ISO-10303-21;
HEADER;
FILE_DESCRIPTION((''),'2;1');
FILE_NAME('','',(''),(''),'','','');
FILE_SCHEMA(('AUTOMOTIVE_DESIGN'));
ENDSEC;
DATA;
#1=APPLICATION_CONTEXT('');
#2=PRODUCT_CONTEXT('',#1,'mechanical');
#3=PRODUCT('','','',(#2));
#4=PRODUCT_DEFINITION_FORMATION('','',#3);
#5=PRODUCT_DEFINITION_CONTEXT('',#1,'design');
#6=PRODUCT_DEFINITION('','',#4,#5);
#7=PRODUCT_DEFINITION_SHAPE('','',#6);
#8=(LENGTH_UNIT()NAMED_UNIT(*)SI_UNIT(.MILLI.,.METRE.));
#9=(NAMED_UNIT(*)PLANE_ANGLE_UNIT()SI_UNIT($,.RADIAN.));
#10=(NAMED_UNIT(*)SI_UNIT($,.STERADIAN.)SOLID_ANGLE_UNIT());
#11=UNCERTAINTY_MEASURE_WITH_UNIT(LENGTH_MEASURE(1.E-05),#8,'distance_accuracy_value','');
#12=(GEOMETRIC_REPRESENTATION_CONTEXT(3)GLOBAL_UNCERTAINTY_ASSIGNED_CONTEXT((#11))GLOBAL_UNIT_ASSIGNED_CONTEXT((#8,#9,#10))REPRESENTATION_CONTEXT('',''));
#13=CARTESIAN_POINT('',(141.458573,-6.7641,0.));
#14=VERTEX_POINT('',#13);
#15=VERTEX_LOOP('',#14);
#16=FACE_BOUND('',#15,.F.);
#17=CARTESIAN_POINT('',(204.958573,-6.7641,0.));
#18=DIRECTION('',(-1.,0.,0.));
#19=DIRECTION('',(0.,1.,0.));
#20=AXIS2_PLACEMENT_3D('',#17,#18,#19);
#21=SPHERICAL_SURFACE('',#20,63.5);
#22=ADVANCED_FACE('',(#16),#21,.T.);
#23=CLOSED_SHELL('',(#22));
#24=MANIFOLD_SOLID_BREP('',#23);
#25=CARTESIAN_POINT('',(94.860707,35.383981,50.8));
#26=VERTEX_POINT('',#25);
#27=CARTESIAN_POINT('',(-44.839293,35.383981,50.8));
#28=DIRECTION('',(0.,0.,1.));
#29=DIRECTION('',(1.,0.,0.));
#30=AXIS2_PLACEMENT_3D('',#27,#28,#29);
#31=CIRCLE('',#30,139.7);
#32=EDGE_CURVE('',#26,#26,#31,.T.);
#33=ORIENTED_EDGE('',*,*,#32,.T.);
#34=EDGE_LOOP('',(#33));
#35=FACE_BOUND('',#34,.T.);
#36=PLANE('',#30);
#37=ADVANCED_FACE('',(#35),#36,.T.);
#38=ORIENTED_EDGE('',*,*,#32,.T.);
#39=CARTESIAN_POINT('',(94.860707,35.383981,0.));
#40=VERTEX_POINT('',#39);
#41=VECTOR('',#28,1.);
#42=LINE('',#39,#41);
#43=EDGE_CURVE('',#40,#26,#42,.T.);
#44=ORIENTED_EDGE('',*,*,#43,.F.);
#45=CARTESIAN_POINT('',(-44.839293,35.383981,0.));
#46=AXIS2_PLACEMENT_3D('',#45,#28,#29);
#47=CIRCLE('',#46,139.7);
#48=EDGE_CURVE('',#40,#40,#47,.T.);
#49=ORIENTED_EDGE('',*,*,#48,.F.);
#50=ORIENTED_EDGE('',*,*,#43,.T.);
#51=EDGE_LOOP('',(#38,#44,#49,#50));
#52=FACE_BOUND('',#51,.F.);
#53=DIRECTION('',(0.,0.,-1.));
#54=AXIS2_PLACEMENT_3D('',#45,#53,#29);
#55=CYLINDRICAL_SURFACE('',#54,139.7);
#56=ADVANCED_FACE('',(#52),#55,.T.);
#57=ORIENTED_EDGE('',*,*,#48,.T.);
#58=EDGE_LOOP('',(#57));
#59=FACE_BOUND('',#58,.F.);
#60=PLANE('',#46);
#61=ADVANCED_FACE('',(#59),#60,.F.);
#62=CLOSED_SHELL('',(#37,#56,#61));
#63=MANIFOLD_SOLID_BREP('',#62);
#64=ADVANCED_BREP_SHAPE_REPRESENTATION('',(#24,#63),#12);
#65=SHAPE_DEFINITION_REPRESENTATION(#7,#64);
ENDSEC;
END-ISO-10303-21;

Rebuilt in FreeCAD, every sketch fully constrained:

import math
import FreeCAD as App
import Part
import Sketcher

V = App.Vector
Q = App.Units.Quantity

doc = App.newDocument("Part")
body = doc.addObject("PartDesign::Body", "Body")

# Sketch on XY plane
sketch1 = body.newObject("Sketcher::SketchObject", "Sketch")
sketch1.AttachmentSupport = (doc.getObject("XY_Plane"), [""])
sketch1.MapMode = "FlatFace"
sketch1.addGeometry(Part.Circle(V(-45, 35, 0), V(0, 0, 1), 140), False)
sketch1.addConstraint([
    Sketcher.Constraint("Diameter", 0, Q("11 in")),
    Sketcher.Constraint("DistanceY", -1, 1, 0, 3, 35.383981),
    Sketcher.Constraint("DistanceX", 0, 3, -1, 1, 44.839293),
])
pad1 = body.newObject("PartDesign::Pad", "Pad")
pad1.Profile = sketch1
pad1.Length = Q("2 in")
body2 = doc.addObject("PartDesign::Body", "Body001")

# Sketch on XY plane
sketch2 = body2.newObject("Sketcher::SketchObject", "Sketch001")
sketch2.AttachmentSupport = (doc.getObject("XY_Plane001"), [""])
sketch2.MapMode = "FlatFace"
sketch2.addGeometry([
    Part.LineSegment(V(141, -7, 0), V(268, -7, 0)),
    Part.ArcOfCircle(Part.Circle(V(205, -7, 0), V(0, 0, 1), 64), math.radians(0), math.radians(180)),
], False)
sketch2.addGeometry(Part.LineSegment(V(141, -7, 0), V(268, -7, 0)), True)  # axis
sketch2.addConstraint([
    Sketcher.Constraint("Coincident", 0, 1, 1, 2),
    Sketcher.Constraint("Coincident", 1, 1, 0, 2),
    Sketcher.Constraint("Horizontal", 0),
    Sketcher.Constraint("Horizontal", 2),
    Sketcher.Constraint("Coincident", 2, 1, 0, 1),
    Sketcher.Constraint("Horizontal", 1, 3, 0, 1),
    Sketcher.Constraint("Equal", 0, 2),
    Sketcher.Constraint("Radius", 1, Q("2.5 in")),
    Sketcher.Constraint("DistanceY", 1, 3, -1, 1, 6.7641),
    Sketcher.Constraint("DistanceX", -1, 1, 1, 3, 204.958573),
])
revolution = body2.newObject("PartDesign::Revolution", "Revolution")
revolution.Profile = sketch2
revolution.ReferenceAxis = (sketch2, ["Axis0"])
revolution.Angle = 360

doc.recompute()
